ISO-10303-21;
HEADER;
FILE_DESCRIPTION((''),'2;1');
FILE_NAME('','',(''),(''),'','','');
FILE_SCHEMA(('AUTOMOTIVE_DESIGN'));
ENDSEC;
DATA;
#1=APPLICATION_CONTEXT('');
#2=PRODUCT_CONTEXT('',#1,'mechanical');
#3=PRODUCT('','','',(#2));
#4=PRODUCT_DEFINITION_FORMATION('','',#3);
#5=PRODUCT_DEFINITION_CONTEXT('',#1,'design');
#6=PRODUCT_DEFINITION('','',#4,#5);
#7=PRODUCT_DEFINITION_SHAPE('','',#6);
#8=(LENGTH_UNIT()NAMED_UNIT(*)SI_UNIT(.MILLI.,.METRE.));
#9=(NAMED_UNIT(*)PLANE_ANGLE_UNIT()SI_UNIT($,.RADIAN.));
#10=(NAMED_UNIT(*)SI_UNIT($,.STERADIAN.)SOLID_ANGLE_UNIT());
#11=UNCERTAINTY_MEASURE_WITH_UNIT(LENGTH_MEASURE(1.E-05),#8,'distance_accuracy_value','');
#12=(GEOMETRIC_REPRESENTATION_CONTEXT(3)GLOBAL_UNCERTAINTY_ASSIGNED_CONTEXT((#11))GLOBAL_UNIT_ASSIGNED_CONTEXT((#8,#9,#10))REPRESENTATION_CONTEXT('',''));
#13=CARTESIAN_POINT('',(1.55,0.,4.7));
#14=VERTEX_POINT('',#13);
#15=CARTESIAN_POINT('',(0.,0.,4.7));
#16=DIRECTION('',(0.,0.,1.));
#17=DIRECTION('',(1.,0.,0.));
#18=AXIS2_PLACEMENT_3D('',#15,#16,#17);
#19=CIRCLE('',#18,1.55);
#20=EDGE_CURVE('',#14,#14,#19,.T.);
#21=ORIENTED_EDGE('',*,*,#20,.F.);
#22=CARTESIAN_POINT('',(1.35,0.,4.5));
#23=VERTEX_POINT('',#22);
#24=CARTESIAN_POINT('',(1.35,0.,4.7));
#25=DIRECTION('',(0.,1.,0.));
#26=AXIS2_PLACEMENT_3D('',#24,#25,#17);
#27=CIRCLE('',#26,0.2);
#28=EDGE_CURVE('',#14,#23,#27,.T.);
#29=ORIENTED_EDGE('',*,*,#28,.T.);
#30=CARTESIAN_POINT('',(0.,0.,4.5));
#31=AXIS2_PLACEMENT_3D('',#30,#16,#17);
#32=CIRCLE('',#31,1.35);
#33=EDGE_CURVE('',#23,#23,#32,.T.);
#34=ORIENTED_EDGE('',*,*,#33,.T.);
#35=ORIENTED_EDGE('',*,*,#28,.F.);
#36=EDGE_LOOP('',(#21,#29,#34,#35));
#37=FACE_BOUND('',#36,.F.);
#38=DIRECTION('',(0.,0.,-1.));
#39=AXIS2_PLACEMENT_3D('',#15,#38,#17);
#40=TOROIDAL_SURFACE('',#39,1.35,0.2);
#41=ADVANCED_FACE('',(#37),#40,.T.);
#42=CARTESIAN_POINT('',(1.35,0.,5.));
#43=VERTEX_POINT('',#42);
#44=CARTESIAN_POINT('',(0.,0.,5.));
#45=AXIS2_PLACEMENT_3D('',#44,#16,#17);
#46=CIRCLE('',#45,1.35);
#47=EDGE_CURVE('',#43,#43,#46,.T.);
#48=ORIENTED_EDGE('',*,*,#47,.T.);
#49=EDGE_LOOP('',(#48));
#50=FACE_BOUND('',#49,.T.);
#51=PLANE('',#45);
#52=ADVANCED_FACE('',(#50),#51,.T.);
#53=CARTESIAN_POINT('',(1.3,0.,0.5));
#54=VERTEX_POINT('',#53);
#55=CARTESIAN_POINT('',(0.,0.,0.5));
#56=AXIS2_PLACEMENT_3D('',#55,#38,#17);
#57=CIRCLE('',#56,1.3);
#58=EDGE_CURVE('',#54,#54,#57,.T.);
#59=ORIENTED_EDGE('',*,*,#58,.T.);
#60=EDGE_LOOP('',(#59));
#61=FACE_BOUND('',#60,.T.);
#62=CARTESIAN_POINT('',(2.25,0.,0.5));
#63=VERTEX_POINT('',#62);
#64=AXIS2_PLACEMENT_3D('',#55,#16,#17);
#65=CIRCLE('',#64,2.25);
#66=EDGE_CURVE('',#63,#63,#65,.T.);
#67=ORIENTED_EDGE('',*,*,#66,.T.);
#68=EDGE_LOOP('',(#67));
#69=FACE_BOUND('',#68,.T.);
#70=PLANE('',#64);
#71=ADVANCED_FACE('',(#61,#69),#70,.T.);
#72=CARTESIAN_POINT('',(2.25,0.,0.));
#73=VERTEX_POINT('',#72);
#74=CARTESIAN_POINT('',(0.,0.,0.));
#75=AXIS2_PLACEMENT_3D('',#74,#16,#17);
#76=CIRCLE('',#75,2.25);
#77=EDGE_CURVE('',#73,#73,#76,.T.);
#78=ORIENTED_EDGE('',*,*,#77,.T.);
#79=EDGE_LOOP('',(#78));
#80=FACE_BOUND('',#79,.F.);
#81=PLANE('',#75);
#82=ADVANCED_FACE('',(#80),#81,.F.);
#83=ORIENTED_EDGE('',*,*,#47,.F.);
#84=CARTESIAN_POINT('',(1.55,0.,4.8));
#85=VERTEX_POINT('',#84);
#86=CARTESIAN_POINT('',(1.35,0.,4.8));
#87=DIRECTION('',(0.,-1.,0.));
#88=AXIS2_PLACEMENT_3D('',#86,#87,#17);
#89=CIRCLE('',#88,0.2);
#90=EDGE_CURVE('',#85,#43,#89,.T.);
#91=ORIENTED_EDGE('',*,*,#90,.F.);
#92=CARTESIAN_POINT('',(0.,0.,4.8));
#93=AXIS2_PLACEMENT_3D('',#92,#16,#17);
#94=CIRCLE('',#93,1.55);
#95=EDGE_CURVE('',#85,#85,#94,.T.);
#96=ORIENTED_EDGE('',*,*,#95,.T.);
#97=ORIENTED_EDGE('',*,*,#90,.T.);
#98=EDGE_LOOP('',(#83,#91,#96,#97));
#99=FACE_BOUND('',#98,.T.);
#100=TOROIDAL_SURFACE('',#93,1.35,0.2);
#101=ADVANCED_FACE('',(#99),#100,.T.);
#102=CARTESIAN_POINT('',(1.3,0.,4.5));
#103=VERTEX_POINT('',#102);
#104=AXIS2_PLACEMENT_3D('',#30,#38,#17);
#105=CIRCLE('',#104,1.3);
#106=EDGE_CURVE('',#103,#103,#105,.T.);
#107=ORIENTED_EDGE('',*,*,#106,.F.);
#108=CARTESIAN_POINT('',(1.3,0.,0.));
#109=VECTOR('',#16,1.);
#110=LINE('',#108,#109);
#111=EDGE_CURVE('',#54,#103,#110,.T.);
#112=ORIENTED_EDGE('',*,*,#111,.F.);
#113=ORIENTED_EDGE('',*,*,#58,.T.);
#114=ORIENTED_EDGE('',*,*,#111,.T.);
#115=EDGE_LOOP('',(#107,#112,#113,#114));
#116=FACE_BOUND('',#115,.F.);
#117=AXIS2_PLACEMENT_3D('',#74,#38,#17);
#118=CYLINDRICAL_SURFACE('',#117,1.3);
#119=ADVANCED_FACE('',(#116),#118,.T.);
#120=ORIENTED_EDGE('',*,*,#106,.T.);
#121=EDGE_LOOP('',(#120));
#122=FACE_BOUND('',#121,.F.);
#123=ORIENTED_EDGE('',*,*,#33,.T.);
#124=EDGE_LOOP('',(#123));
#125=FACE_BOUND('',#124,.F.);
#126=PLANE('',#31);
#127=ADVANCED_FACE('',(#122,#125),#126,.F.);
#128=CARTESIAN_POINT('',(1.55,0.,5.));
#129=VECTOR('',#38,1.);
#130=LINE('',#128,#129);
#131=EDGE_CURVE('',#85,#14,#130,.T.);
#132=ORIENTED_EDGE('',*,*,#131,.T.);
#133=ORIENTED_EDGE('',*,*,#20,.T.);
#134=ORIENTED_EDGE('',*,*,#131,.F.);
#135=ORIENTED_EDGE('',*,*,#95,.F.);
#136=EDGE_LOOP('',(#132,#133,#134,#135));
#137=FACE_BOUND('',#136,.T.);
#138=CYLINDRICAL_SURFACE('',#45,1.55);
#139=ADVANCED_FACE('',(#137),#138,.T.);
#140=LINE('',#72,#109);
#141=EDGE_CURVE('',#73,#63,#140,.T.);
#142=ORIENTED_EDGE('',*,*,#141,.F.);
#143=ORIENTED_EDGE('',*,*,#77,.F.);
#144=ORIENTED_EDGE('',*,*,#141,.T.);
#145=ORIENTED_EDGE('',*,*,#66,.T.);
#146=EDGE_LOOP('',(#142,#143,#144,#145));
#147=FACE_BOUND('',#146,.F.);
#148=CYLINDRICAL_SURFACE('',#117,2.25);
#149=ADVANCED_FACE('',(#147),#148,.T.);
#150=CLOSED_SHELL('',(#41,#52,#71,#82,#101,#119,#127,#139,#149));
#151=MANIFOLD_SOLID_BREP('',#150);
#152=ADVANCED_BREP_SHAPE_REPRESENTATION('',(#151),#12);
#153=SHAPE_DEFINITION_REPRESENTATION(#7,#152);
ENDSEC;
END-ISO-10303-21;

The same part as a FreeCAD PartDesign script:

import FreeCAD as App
import Part
import Sketcher
Q = App.Units.Quantity


def edges_at(feature, points):
    """Names of the edges that pass closest to the given points."""
    edges = feature.Shape.Edges
    near = lambda p: min(range(len(edges)), key=lambda i: edges[i].distToShape(Part.Vertex(*p))[0])
    return sorted({f"Edge{near(p) + 1}" for p in points})

doc = App.newDocument("Part")
body = doc.addObject("PartDesign::Body", "Body")

# Sketch on XY plane
sketch1 = doc.addObject("Sketcher::SketchObject", "Sketch")
body.addObject(sketch1)
sketch1.AttachmentSupport = (doc.XY_Plane, [""])
sketch1.MapMode = "FlatFace"
sketch1.addGeometry(Part.Circle(App.Vector(0, 0, 0), App.Vector(0, 0, 1), 2.2), False)
sketch1.addConstraint(Sketcher.Constraint("Coincident", 0, 3, -1, 1))
sketch1.addConstraint(Sketcher.Constraint("Diameter", 0, Q("4.5 mm")))
pad1 = doc.addObject("PartDesign::Pad", "Pad")
body.addObject(pad1)
pad1.Profile = sketch1
pad1.Length = 0.5

# Sketch on XY plane
sketch2 = doc.addObject("Sketcher::SketchObject", "Sketch001")
body.addObject(sketch2)
sketch2.AttachmentSupport = (doc.XY_Plane, [""])
sketch2.MapMode = "FlatFace"
sketch2.addGeometry(Part.Circle(App.Vector(0, 0, 0), App.Vector(0, 0, 1), 1.3), False)
sketch2.addConstraint(Sketcher.Constraint("Coincident", 0, 3, -1, 1))
sketch2.addConstraint(Sketcher.Constraint("Diameter", 0, Q("2.6 mm")))
pad2 = doc.addObject("PartDesign::Pad", "Pad001")
body.addObject(pad2)
pad2.Profile = sketch2
pad2.Length = 5

# Sketch on XY plane
sketch3 = doc.addObject("Sketcher::SketchObject", "Sketch002")
body.addObject(sketch3)
sketch3.AttachmentSupport = (doc.XY_Plane, [""])
sketch3.MapMode = "FlatFace"
sketch3.AttachmentOffset = App.Placement(App.Vector(0, 0, 5), App.Rotation())
sketch3.addGeometry(Part.Circle(App.Vector(0, 0, 0), App.Vector(0, 0, 1), 1.6), False)
sketch3.addConstraint(Sketcher.Constraint("Coincident", 0, 3, -1, 1))
sketch3.addConstraint(Sketcher.Constraint("Diameter", 0, Q("3.1 mm")))
pad3 = doc.addObject("PartDesign::Pad", "Pad002")
body.addObject(pad3)
pad3.Profile = sketch3
pad3.Length = 0.5
pad3.Reversed = True
doc.recompute()

fillet = doc.addObject("PartDesign::Fillet", "Fillet")
body.addObject(fillet)
fillet.Base = (pad3, edges_at(pad3, [(-1.55, 0, 4.5), (-1.55, 0, 5)]))
fillet.Radius = 0.2

doc.recompute()
